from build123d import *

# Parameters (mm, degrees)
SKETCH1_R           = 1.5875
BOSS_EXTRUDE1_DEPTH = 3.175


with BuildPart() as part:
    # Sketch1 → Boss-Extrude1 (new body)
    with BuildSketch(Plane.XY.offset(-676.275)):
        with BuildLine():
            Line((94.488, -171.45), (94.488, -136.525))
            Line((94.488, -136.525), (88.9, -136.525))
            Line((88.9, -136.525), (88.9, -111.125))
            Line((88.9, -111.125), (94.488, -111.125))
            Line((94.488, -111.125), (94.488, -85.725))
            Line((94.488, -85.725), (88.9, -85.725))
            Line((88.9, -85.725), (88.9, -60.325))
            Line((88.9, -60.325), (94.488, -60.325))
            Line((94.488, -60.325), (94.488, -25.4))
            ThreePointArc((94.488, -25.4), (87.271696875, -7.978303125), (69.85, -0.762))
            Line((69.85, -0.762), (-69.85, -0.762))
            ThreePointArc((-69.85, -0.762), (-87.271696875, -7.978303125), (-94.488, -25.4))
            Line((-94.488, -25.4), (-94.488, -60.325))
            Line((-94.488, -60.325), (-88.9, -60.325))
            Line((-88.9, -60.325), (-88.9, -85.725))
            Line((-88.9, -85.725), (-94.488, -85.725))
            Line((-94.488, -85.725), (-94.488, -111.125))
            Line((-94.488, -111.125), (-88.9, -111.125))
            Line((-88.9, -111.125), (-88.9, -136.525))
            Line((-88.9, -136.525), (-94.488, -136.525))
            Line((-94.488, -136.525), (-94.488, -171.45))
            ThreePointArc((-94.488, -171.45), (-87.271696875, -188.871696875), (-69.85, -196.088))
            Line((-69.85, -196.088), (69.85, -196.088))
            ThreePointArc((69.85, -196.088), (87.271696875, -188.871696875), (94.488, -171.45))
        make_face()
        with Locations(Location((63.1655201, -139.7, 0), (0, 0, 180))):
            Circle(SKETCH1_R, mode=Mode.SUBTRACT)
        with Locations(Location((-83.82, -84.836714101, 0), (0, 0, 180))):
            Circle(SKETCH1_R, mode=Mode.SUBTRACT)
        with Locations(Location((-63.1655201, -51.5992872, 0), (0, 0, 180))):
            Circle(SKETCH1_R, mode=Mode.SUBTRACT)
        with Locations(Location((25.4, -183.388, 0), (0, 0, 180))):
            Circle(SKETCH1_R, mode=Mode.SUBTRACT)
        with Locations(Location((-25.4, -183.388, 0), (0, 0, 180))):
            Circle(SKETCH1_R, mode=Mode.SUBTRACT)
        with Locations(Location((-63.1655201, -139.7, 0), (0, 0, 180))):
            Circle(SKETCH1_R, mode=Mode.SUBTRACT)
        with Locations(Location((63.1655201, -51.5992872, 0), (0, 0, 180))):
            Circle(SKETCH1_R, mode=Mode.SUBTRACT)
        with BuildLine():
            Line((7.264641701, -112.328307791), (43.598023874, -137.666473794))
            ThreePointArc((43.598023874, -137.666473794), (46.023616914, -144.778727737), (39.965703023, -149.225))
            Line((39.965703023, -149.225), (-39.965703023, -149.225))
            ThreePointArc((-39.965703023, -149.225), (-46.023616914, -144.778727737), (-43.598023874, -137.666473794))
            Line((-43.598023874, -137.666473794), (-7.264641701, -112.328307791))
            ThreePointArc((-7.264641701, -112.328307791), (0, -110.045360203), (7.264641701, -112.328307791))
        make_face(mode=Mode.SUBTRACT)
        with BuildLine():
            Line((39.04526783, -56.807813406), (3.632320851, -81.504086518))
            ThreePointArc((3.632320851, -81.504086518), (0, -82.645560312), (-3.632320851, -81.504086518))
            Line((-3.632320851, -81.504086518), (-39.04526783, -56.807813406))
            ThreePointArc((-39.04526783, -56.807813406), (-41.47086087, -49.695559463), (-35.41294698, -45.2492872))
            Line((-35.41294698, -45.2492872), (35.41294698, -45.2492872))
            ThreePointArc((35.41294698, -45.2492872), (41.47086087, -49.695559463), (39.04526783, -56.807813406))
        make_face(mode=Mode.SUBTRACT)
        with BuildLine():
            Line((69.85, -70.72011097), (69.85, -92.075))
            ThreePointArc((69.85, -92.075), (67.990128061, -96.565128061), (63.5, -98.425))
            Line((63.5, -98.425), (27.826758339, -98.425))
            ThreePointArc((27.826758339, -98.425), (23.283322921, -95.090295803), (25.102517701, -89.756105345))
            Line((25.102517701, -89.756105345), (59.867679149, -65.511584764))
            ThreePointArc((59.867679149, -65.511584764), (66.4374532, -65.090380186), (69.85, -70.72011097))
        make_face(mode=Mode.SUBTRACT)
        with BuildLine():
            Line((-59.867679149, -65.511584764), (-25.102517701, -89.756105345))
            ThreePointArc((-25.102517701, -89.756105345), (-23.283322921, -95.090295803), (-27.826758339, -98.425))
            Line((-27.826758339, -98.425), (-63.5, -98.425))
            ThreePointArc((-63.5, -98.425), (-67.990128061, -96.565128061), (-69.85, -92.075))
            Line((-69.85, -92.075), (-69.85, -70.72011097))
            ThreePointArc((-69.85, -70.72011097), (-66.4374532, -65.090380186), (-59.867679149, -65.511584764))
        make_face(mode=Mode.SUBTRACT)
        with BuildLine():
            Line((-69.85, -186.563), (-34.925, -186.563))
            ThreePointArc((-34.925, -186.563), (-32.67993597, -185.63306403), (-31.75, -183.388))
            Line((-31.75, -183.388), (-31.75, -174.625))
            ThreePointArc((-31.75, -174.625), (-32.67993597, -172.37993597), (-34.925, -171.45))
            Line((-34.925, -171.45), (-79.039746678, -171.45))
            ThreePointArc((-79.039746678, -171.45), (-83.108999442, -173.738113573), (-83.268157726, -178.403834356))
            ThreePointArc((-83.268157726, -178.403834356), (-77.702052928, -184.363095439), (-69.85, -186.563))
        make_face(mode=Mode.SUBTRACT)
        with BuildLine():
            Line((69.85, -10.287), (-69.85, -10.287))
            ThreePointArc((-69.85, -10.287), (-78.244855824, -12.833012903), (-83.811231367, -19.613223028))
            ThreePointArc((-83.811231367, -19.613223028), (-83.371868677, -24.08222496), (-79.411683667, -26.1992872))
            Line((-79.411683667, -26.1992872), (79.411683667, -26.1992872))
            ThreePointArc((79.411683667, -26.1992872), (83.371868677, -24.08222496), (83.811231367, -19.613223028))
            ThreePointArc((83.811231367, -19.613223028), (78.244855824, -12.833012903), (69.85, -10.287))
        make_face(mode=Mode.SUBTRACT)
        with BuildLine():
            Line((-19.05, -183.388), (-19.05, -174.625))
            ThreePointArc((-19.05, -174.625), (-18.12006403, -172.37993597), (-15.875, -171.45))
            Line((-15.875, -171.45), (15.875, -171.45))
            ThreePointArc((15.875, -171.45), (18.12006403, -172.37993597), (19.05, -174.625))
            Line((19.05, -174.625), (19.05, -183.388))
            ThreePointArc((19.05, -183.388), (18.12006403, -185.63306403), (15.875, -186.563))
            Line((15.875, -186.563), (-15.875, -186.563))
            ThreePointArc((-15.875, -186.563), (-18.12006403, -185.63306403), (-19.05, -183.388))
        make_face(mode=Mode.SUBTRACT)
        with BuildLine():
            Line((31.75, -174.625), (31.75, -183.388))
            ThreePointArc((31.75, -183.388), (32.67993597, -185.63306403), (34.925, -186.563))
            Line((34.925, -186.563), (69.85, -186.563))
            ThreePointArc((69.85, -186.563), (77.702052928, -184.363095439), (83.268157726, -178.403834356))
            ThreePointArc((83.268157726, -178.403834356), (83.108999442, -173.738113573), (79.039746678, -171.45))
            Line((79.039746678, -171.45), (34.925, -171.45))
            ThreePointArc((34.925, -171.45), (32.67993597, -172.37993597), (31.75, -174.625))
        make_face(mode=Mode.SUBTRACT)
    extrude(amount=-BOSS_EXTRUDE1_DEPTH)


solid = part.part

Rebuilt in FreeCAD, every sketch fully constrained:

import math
import FreeCAD as App
import Part
import Sketcher

V = App.Vector
Q = App.Units.Quantity

doc = App.newDocument("Part")
body = doc.addObject("PartDesign::Body", "Body")

# Sketch on XY plane
sketch1 = body.newObject("Sketcher::SketchObject", "Sketch")
sketch1.AttachmentSupport = (doc.getObject("XY_Plane"), [""])
sketch1.MapMode = "FlatFace"
sketch1.AttachmentOffset = App.Placement(V(0, 0, -26.625 * 25.4), App.Rotation())
sketch1.addGeometry([
    Part.LineSegment(V(94.488, -171.45, 0), V(94.488, -136.525, 0)),  # 0
    Part.LineSegment(V(94.488, -136.525, 0), V(88.9, -136.525, 0)),  # 1
    Part.LineSegment(V(88.9, -136.525, 0), V(88.9, -111.125, 0)),  # 2
    Part.LineSegment(V(88.9, -111.125, 0), V(94.488, -111.125, 0)),  # 3
    Part.LineSegment(V(94.488, -111.125, 0), V(94.488, -85.725, 0)),  # 4
    Part.LineSegment(V(94.488, -85.725, 0), V(88.9, -85.725, 0)),  # 5
    Part.LineSegment(V(88.9, -85.725, 0), V(88.9, -60.325, 0)),  # 6
    Part.LineSegment(V(88.9, -60.325, 0), V(94.488, -60.325, 0)),  # 7
    Part.LineSegment(V(94.488, -60.325, 0), V(94.488, -25.4, 0)),  # 8
    Part.ArcOfCircle(Part.Circle(V(69.85, -25.4, 0), V(0, 0, 1), 24.638), math.radians(0), math.radians(90)),  # 9
    Part.LineSegment(V(69.85, -0.762, 0), V(-69.85, -0.762, 0)),  # 10
    Part.ArcOfCircle(Part.Circle(V(-69.85, -25.4, 0), V(0, 0, 1), 24.638), math.radians(90), math.radians(180)),  # 11
    Part.LineSegment(V(-94.488, -25.4, 0), V(-94.488, -60.325, 0)),  # 12
    Part.LineSegment(V(-94.488, -60.325, 0), V(-88.9, -60.325, 0)),  # 13
    Part.LineSegment(V(-88.9, -60.325, 0), V(-88.9, -85.725, 0)),  # 14
    Part.LineSegment(V(-88.9, -85.725, 0), V(-94.488, -85.725, 0)),  # 15
    Part.LineSegment(V(-94.488, -85.725, 0), V(-94.488, -111.125, 0)),  # 16
    Part.LineSegment(V(-94.488, -111.125, 0), V(-88.9, -111.125, 0)),  # 17
    Part.LineSegment(V(-88.9, -111.125, 0), V(-88.9, -136.525, 0)),  # 18
    Part.LineSegment(V(-88.9, -136.525, 0), V(-94.488, -136.525, 0)),  # 19
    Part.LineSegment(V(-94.488, -136.525, 0), V(-94.488, -171.45, 0)),  # 20
    Part.ArcOfCircle(Part.Circle(V(-69.85, -171.45, 0), V(0, 0, 1), 24.638), math.radians(180), math.radians(270)),  # 21
    Part.LineSegment(V(-69.85, -196.088, 0), V(69.85, -196.088, 0)),  # 22
    Part.ArcOfCircle(Part.Circle(V(69.85, -171.45, 0), V(0, 0, 1), 24.638), math.radians(-90), math.radians(0)),  # 23
    Part.LineSegment(V(-34.925, -186.563, 0), V(-69.85, -186.563, 0)),  # 24
    Part.ArcOfCircle(Part.Circle(V(-69.85, -171.45, 0), V(0, 0, 1), 15.113), math.radians(-152.604975), math.radians(-90)),  # 25
    Part.ArcOfCircle(Part.Circle(V(-79.039747, -176.2125, 0), V(0, 0, 1), 4.7625), math.radians(90), math.radians(207.395025)),  # 26
    Part.LineSegment(V(-79.039747, -171.45, 0), V(-34.925, -171.45, 0)),  # 27
    Part.ArcOfCircle(Part.Circle(V(-34.925, -174.625, 0), V(0, 0, 1), 3.175), math.radians(0), math.radians(90)),  # 28
    Part.LineSegment(V(-31.75, -174.625, 0), V(-31.75, -183.388, 0)),  # 29
    Part.ArcOfCircle(Part.Circle(V(-34.925, -183.388, 0), V(0, 0, 1), 3.175), math.radians(-90), math.radians(0)),  # 30
    Part.Circle(V(-25.4, -183.388, 0), V(0, 0, 1), 1.5875),  # 31
    Part.Circle(V(-63.16552, -139.7, 0), V(0, 0, 1), 1.5875),  # 32
    Part.ArcOfCircle(Part.Circle(V(-15.875, -183.388, 0), V(0, 0, 1), 3.175), math.radians(-180), math.radians(-90)),  # 33
    Part.LineSegment(V(-19.05, -183.388, 0), V(-19.05, -174.625, 0)),  # 34
    Part.ArcOfCircle(Part.Circle(V(-15.875, -174.625, 0), V(0, 0, 1), 3.175), math.radians(90), math.radians(180)),  # 35
    Part.LineSegment(V(-15.875, -171.45, 0), V(15.875, -171.45, 0)),  # 36
    Part.ArcOfCircle(Part.Circle(V(15.875, -174.625, 0), V(0, 0, 1), 3.175), math.radians(0), math.radians(90)),  # 37
    Part.LineSegment(V(19.05, -174.625, 0), V(19.05, -183.388, 0)),  # 38
    Part.ArcOfCircle(Part.Circle(V(15.875, -183.388, 0), V(0, 0, 1), 3.175), math.radians(-90), math.radians(0)),  # 39
    Part.LineSegment(V(15.875, -186.563, 0), V(-15.875, -186.563, 0)),  # 40
    Part.Circle(V(25.4, -183.388, 0), V(0, 0, 1), 1.5875),  # 41
    Part.LineSegment(V(31.75, -183.388, 0), V(31.75, -174.625, 0)),  # 42
    Part.ArcOfCircle(Part.Circle(V(34.925, -174.625, 0), V(0, 0, 1), 3.175), math.radians(90), math.radians(180)),  # 43
    Part.LineSegment(V(34.925, -171.45, 0), V(79.039747, -171.45, 0)),  # 44
    Part.ArcOfCircle(Part.Circle(V(79.039747, -176.2125, 0), V(0, 0, 1), 4.7625), math.radians(-27.395025), math.radians(90)),  # 45
    Part.ArcOfCircle(Part.Circle(V(69.85, -171.45, 0), V(0, 0, 1), 15.113), math.radians(-90), math.radians(-27.395025)),  # 46
    Part.LineSegment(V(69.85, -186.563, 0), V(34.925, -186.563, 0)),  # 47
    Part.ArcOfCircle(Part.Circle(V(34.925, -183.388, 0), V(0, 0, 1), 3.175), math.radians(-180), math.radians(-90)),  # 48
    Part.ArcOfCircle(Part.Circle(V(0, -122.74536, 0), V(0, 0, 1), 12.7), math.radians(55.108861), math.radians(124.891139)),  # 49
    Part.LineSegment(V(7.264642, -112.328308, 0), V(43.598024, -137.666474, 0)),  # 50
    Part.ArcOfCircle(Part.Circle(V(39.965703, -142.875, 0), V(0, 0, 1), 6.35), math.radians(-90), math.radians(55.108861)),  # 51
    Part.LineSegment(V(39.965703, -149.225, 0), V(-39.965703, -149.225, 0)),  # 52
    Part.ArcOfCircle(Part.Circle(V(-39.965703, -142.875, 0), V(0, 0, 1), 6.35), math.radians(124.891139), math.radians(270)),  # 53
    Part.LineSegment(V(-43.598024, -137.666474, 0), V(-7.264642, -112.328308, 0)),  # 54
    Part.Circle(V(63.16552, -139.7, 0), V(0, 0, 1), 1.5875),  # 55
    Part.Circle(V(-83.82, -84.836714, 0), V(0, 0, 1), 1.5875),  # 56
    Part.ArcOfCircle(Part.Circle(V(-63.5, -70.720111, 0), V(0, 0, 1), 6.35), math.radians(55.108861), math.radians(180)),  # 57
    Part.LineSegment(V(-59.867679, -65.511585, 0), V(-25.102518, -89.756105, 0)),  # 58
    Part.ArcOfCircle(Part.Circle(V(-27.826758, -93.6625, 0), V(0, 0, 1), 4.7625), math.radians(-90), math.radians(55.108861)),  # 59
    Part.LineSegment(V(-27.826758, -98.425, 0), V(-63.5, -98.425, 0)),  # 60
    Part.ArcOfCircle(Part.Circle(V(-63.5, -92.075, 0), V(0, 0, 1), 6.35), math.radians(180), math.radians(270)),  # 61
    Part.LineSegment(V(-69.85, -92.075, 0), V(-69.85, -70.720111, 0)),  # 62
    Part.Circle(V(-63.16552, -51.599287, 0), V(0, 0, 1), 1.5875),  # 63
    Part.ArcOfCircle(Part.Circle(V(35.412947, -51.599287, 0), V(0, 0, 1), 6.35), math.radians(-55.108861), math.radians(90)),  # 64
    Part.LineSegment(V(39.045268, -56.807813, 0), V(3.632321, -81.504087, 0)),  # 65
    Part.ArcOfCircle(Part.Circle(V(0, -76.29556, 0), V(0, 0, 1), 6.35), math.radians(-124.891139), math.radians(-55.108861)),  # 66
    Part.LineSegment(V(-3.632321, -81.504087, 0), V(-39.045268, -56.807813, 0)),  # 67
    Part.ArcOfCircle(Part.Circle(V(-35.412947, -51.599287, 0), V(0, 0, 1), 6.35), math.radians(90), math.radians(235.108861)),  # 68
    Part.LineSegment(V(-35.412947, -45.249287, 0), V(35.412947, -45.249287, 0)),  # 69
    Part.ArcOfCircle(Part.Circle(V(63.5, -70.720111, 0), V(0, 0, 1), 6.35), math.radians(0), math.radians(124.891139)),  # 70
    Part.LineSegment(V(69.85, -70.720111, 0), V(69.85, -92.075, 0)),  # 71
    Part.ArcOfCircle(Part.Circle(V(63.5, -92.075, 0), V(0, 0, 1), 6.35), math.radians(-90), math.radians(0)),  # 72
    Part.LineSegment(V(63.5, -98.425, 0), V(27.826758, -98.425, 0)),  # 73
    Part.ArcOfCircle(Part.Circle(V(27.826758, -93.6625, 0), V(0, 0, 1), 4.7625), math.radians(124.891139), math.radians(270)),  # 74
    Part.LineSegment(V(25.102518, -89.756105, 0), V(59.867679, -65.511585, 0)),  # 75
    Part.LineSegment(V(-69.85, -10.287, 0), V(69.85, -10.287, 0)),  # 76
    Part.ArcOfCircle(Part.Circle(V(69.85, -25.4, 0), V(0, 0, 1), 15.113), math.radians(22.513469), math.radians(90)),  # 77
    Part.ArcOfCircle(Part.Circle(V(79.411684, -21.436787, 0), V(0, 0, 1), 4.7625), math.radians(-90), math.radians(22.513469)),  # 78
    Part.LineSegment(V(79.411684, -26.199287, 0), V(-79.411684, -26.199287, 0)),  # 79
    Part.ArcOfCircle(Part.Circle(V(-79.411684, -21.436787, 0), V(0, 0, 1), 4.7625), math.radians(157.486531), math.radians(270)),  # 80
    Part.ArcOfCircle(Part.Circle(V(-69.85, -25.4, 0), V(0, 0, 1), 15.113), math.radians(90), math.radians(157.486531)),  # 81
    Part.Circle(V(63.16552, -51.599287, 0), V(0, 0, 1), 1.5875),  # 82
], False)
sketch1.addConstraint([
    Sketcher.Constraint("Coincident", 0, 2, 1, 1),
    Sketcher.Constraint("Coincident", 1, 2, 2, 1),
    Sketcher.Constraint("Coincident", 2, 2, 3, 1),
    Sketcher.Constraint("Coincident", 3, 2, 4, 1),
    Sketcher.Constraint("Coincident", 4, 2, 5, 1),
    Sketcher.Constraint("Coincident", 5, 2, 6, 1),
    Sketcher.Constraint("Coincident", 6, 2, 7, 1),
    Sketcher.Constraint("Coincident", 7, 2, 8, 1),
    Sketcher.Constraint("Tangent", 8, 2, 9, 1),
    Sketcher.Constraint("Tangent", 9, 2, 10, 1),
    Sketcher.Constraint("Tangent", 10, 2, 11, 1),
    Sketcher.Constraint("Tangent", 11, 2, 12, 1),
    Sketcher.Constraint("Coincident", 12, 2, 13, 1),
    Sketcher.Constraint("Coincident", 13, 2, 14, 1),
    Sketcher.Constraint("Coincident", 14, 2, 15, 1),
    Sketcher.Constraint("Coincident", 15, 2, 16, 1),
    Sketcher.Constraint("Coincident", 16, 2, 17, 1),
    Sketcher.Constraint("Coincident", 17, 2, 18, 1),
    Sketcher.Constraint("Coincident", 18, 2, 19, 1),
    Sketcher.Constraint("Coincident", 19, 2, 20, 1),
    Sketcher.Constraint("Tangent", 20, 2, 21, 1),
    Sketcher.Constraint("Tangent", 21, 2, 22, 1),
    Sketcher.Constraint("Tangent", 22, 2, 23, 1),
    Sketcher.Constraint("Tangent", 23, 2, 0, 1),
    Sketcher.Constraint("Tangent", 24, 2, 25, 2),
    Sketcher.Constraint("Tangent", 25, 1, 26, 2),
    Sketcher.Constraint("Tangent", 26, 1, 27, 1),
    Sketcher.Constraint("Tangent", 27, 2, 28, 2),
    Sketcher.Constraint("Tangent", 28, 1, 29, 1),
    Sketcher.Constraint("Tangent", 29, 2, 30, 2),
    Sketcher.Constraint("Tangent", 30, 1, 24, 1),
    Sketcher.Constraint("Tangent", 33, 1, 34, 1),
    Sketcher.Constraint("Tangent", 34, 2, 35, 2),
    Sketcher.Constraint("Tangent", 35, 1, 36, 1),
    Sketcher.Constraint("Tangent", 36, 2, 37, 2),
    Sketcher.Constraint("Tangent", 37, 1, 38, 1),
    Sketcher.Constraint("Tangent", 38, 2, 39, 2),
    Sketcher.Constraint("Tangent", 39, 1, 40, 1),
    Sketcher.Constraint("Tangent", 40, 2, 33, 2),
    Sketcher.Constraint("Tangent", 42, 2, 43, 2),
    Sketcher.Constraint("Tangent", 43, 1, 44, 1),
    Sketcher.Constraint("Tangent", 44, 2, 45, 2),
    Sketcher.Constraint("Tangent", 45, 1, 46, 2),
    Sketcher.Constraint("Tangent", 46, 1, 47, 1),
    Sketcher.Constraint("Tangent", 47, 2, 48, 2),
    Sketcher.Constraint("Tangent", 48, 1, 42, 1),
    Sketcher.Constraint("Tangent", 49, 1, 50, 1),
    Sketcher.Constraint("Tangent", 50, 2, 51, 2),
    Sketcher.Constraint("Tangent", 51, 1, 52, 1),
    Sketcher.Constraint("Tangent", 52, 2, 53, 2),
    Sketcher.Constraint("Tangent", 53, 1, 54, 1),
    Sketcher.Constraint("Tangent", 54, 2, 49, 2),
    Sketcher.Constraint("Tangent", 57, 1, 58, 1),
    Sketcher.Constraint("Tangent", 58, 2, 59, 2),
    Sketcher.Constraint("Tangent", 59, 1, 60, 1),
    Sketcher.Constraint("Tangent", 60, 2, 61, 2),
    Sketcher.Constraint("Tangent", 61, 1, 62, 1),
    Sketcher.Constraint("Tangent", 62, 2, 57, 2),
    Sketcher.Constraint("Tangent", 64, 1, 65, 1),
    Sketcher.Constraint("Tangent", 65, 2, 66, 2),
    Sketcher.Constraint("Tangent", 66, 1, 67, 1),
    Sketcher.Constraint("Tangent", 67, 2, 68, 2),
    Sketcher.Constraint("Tangent", 68, 1, 69, 1),
    Sketcher.Constraint("Tangent", 69, 2, 64, 2),
    Sketcher.Constraint("Tangent", 70, 1, 71, 1),
    Sketcher.Constraint("Tangent", 71, 2, 72, 2),
    Sketcher.Constraint("Tangent", 72, 1, 73, 1),
    Sketcher.Constraint("Tangent", 73, 2, 74, 2),
    Sketcher.Constraint("Tangent", 74, 1, 75, 1),
    Sketcher.Constraint("Tangent", 75, 2, 70, 2),
    Sketcher.Constraint("Tangent", 76, 2, 77, 2),
    Sketcher.Constraint("Tangent", 77, 1, 78, 2),
    Sketcher.Constraint("Tangent", 78, 1, 79, 1),
    Sketcher.Constraint("Tangent", 79, 2, 80, 2),
    Sketcher.Constraint("Tangent", 80, 1, 81, 2),
    Sketcher.Constraint("Tangent", 81, 1, 76, 1),
    Sketcher.Constraint("Vertical", 0),
    Sketcher.Constraint("Horizontal", 1),
    Sketcher.Constraint("Vertical", 2),
    Sketcher.Constraint("Horizontal", 3),
    Sketcher.Constraint("Vertical", 4),
    Sketcher.Constraint("Horizontal", 5),
    Sketcher.Constraint("Vertical", 6),
    Sketcher.Constraint("Horizontal", 7),
    Sketcher.Constraint("Vertical", 8),
    Sketcher.Constraint("Horizontal", 10),
    Sketcher.Constraint("Vertical", 12),
    Sketcher.Constraint("Horizontal", 13),
    Sketcher.Constraint("Vertical", 14),
    Sketcher.Constraint("Horizontal", 15),
    Sketcher.Constraint("Vertical", 16),
    Sketcher.Constraint("Horizontal", 17),
    Sketcher.Constraint("Vertical", 18),
    Sketcher.Constraint("Horizontal", 19),
    Sketcher.Constraint("Vertical", 20),
    Sketcher.Constraint("Horizontal", 22),
    Sketcher.Constraint("Horizontal", 24),
    Sketcher.Constraint("Horizontal", 27),
    Sketcher.Constraint("Vertical", 29),
    Sketcher.Constraint("Vertical", 34),
    Sketcher.Constraint("Horizontal", 36),
    Sketcher.Constraint("Vertical", 38),
    Sketcher.Constraint("Horizontal", 40),
    Sketcher.Constraint("Vertical", 42),
    Sketcher.Constraint("Horizontal", 44),
    Sketcher.Constraint("Horizontal", 47),
    Sketcher.Constraint("Horizontal", 52),
    Sketcher.Constraint("Horizontal", 60),
    Sketcher.Constraint("Vertical", 62),
    Sketcher.Constraint("Horizontal", 69),
    Sketcher.Constraint("Vertical", 71),
    Sketcher.Constraint("Horizontal", 73),
    Sketcher.Constraint("Horizontal", 76),
    Sketcher.Constraint("Horizontal", 79),
    Sketcher.Constraint("Coincident", 25, 3, 21, 3),
    Sketcher.Constraint("Coincident", 46, 3, 23, 3),
    Sketcher.Constraint("Coincident", 77, 3, 9, 3),
    Sketcher.Constraint("Coincident", 81, 3, 11, 3),
    Sketcher.Constraint("Equal", 9, 11),
    Sketcher.Constraint("Equal", 11, 21),
    Sketcher.Constraint("Equal", 21, 23),
    Sketcher.Constraint("Equal", 28, 30),
    Sketcher.Constraint("Equal", 31, 32),
    Sketcher.Constraint("Equal", 30, 33),
    Sketcher.Constraint("Equal", 33, 35),
    Sketcher.Constraint("Equal", 35, 37),
    Sketcher.Constraint("Equal", 37, 39),
    Sketcher.Constraint("Equal", 32, 41),
    Sketcher.Constraint("Equal", 39, 43),
    Sketcher.Constraint("Equal", 26, 45),
    Sketcher.Constraint("Equal", 25, 46),
    Sketcher.Constraint("Equal", 43, 48),
    Sketcher.Constraint("Equal", 51, 53),
    Sketcher.Constraint("Equal", 41, 55),
    Sketcher.Constraint("Equal", 55, 56),
    Sketcher.Constraint("Equal", 53, 57),
    Sketcher.Constraint("Equal", 45, 59),
    Sketcher.Constraint("Equal", 57, 61),
    Sketcher.Constraint("Equal", 56, 63),
    Sketcher.Constraint("Equal", 61, 64),
    Sketcher.Constraint("Equal", 64, 66),
    Sketcher.Constraint("Equal", 66, 68),
    Sketcher.Constraint("Equal", 68, 70),
    Sketcher.Constraint("Equal", 70, 72),
    Sketcher.Constraint("Equal", 59, 74),
    Sketcher.Constraint("Equal", 46, 77),
    Sketcher.Constraint("Equal", 74, 78),
    Sketcher.Constraint("Equal", 78, 80),
    Sketcher.Constraint("Equal", 63, 82),
    Sketcher.Constraint("Symmetric", 31, 3, 41, 3, -2),
    Sketcher.Constraint("Symmetric", 28, 3, 43, 3, -2),
    Sketcher.Constraint("Symmetric", 32, 3, 55, 3, -2),
    Sketcher.Constraint("Symmetric", 57, 3, 70, 3, -2),
    Sketcher.Constraint("Symmetric", 59, 3, 74, 3, -2),
    Sketcher.Constraint("Symmetric", 63, 3, 82, 3, -2),
    Sketcher.Constraint("Symmetric", 7, 2, 12, 2, -2),
    Sketcher.Constraint("Symmetric", 5, 2, 14, 2, -2),
    Sketcher.Constraint("Symmetric", 3, 2, 16, 2, -2),
    Sketcher.Constraint("Symmetric", 1, 2, 18, 2, -2),
    Sketcher.Constraint("Symmetric", 50, 2, 53, 1, -2),
    Sketcher.Constraint("Symmetric", 65, 2, 66, 1, -2),
    Sketcher.Constraint("Parallel", 50, 58),
    Sketcher.Constraint("Parallel", 54, 65),
    Sketcher.Constraint("Horizontal", 30, 3, 31, 3),
    Sketcher.Constraint("Horizontal", 31, 3, 33, 3),
    Sketcher.Constraint("Horizontal", 28, 3, 35, 3),
    Sketcher.Constraint("Horizontal", 63, 3, 64, 3),
    Sketcher.Constraint("Horizontal", 23, 2, 26, 1),
    Sketcher.Constraint("Vertical", 11, 3, 21, 3),
    Sketcher.Constraint("Vertical", 9, 3, 23, 3),
    Sketcher.Constraint("Vertical", 32, 3, 63, 3),
    Sketcher.Constraint("Vertical", 0, 2, 3, 2),
    Sketcher.Constraint("Vertical", 2, 2, 5, 2),
    Sketcher.Constraint("Vertical", 24, 2, 61, 1),
    Sketcher.Constraint("Equal", 47, 0),
    Sketcher.Constraint("Equal", 2, 4),
    Sketcher.Constraint("Equal", 4, 6),
    Sketcher.Constraint("Equal", 0, 8),
    Sketcher.Constraint("Radius", 49, Q("0.5 in")),
    Sketcher.Constraint("DistanceY", 2, 1, 2, 2, Q("1 in")),
    Sketcher.Constraint("Radius", 9, Q("0.97 in")),
    Sketcher.Constraint("Radius", 51, Q("0.25 in")),
    Sketcher.Constraint("Diameter", 31, Q("0.125 in")),
    Sketcher.Constraint("DistanceX", 10, 2, 10, 1, Q("5.5 in")),
    Sketcher.Constraint("DistanceY", 9, 3, -1, 1, Q("1 in")),
    Sketcher.Constraint("DistanceX", 31, 3, -1, 1, Q("1 in")),
    Sketcher.Constraint("Radius", 25, Q("0.595 in")),
    Sketcher.Constraint("Radius", 26, Q("0.1875 in")),
    Sketcher.Constraint("Radius", 28, Q("0.125 in")),
    Sketcher.Constraint("DistanceX", 1, 2, 1, 1, Q("0.22 in")),
    Sketcher.Constraint("DistanceX", 36, 1, 36, 2, Q("1.25 in")),
    Sketcher.Constraint("DistanceY", 32, 3, -1, 1, Q("5.5 in")),
    Sketcher.Constraint("DistanceX", 56, 3, -1, 1, Q("3.3 in")),
    Sketcher.Constraint("DistanceX", 24, 2, 24, 1, Q("1.375 in")),
    Sketcher.Constraint("DistanceX", 33, 1, -1, 1, Q("0.75 in")),
    Sketcher.Constraint("DistanceY", 51, 3, -1, 1, Q("5.625 in")),
    Sketcher.Constraint("DistanceY", 59, 3, -1, 1, Q("3.6875 in")),
    Sketcher.Constraint("DistanceX", 60, 2, 60, 1, Q("35.673242 mm")),
    Sketcher.Constraint("DistanceY", 62, 1, 62, 2, Q("21.354889 mm")),
    Sketcher.Constraint("Distance", 50, Q("44.296019 mm")),
    Sketcher.Constraint("DistanceX", 69, 1, 69, 2, Q("70.825894 mm")),
    Sketcher.Constraint("DistanceX", 79, 2, 79, 1, Q("158.823367 mm")),
    Sketcher.Constraint("DistanceX", 32, 3, -1, 1, Q("63.16552 mm")),
    Sketcher.Constraint("DistanceY", 66, 3, -1, 1, Q("76.29556 mm")),
    Sketcher.Constraint("DistanceY", 56, 3, -1, 1, Q("84.836714 mm")),
])
pad1 = body.newObject("PartDesign::Pad", "Pad")
pad1.Profile = sketch1
pad1.Length = Q("0.125 in")
pad1.Reversed = True

doc.recompute()
